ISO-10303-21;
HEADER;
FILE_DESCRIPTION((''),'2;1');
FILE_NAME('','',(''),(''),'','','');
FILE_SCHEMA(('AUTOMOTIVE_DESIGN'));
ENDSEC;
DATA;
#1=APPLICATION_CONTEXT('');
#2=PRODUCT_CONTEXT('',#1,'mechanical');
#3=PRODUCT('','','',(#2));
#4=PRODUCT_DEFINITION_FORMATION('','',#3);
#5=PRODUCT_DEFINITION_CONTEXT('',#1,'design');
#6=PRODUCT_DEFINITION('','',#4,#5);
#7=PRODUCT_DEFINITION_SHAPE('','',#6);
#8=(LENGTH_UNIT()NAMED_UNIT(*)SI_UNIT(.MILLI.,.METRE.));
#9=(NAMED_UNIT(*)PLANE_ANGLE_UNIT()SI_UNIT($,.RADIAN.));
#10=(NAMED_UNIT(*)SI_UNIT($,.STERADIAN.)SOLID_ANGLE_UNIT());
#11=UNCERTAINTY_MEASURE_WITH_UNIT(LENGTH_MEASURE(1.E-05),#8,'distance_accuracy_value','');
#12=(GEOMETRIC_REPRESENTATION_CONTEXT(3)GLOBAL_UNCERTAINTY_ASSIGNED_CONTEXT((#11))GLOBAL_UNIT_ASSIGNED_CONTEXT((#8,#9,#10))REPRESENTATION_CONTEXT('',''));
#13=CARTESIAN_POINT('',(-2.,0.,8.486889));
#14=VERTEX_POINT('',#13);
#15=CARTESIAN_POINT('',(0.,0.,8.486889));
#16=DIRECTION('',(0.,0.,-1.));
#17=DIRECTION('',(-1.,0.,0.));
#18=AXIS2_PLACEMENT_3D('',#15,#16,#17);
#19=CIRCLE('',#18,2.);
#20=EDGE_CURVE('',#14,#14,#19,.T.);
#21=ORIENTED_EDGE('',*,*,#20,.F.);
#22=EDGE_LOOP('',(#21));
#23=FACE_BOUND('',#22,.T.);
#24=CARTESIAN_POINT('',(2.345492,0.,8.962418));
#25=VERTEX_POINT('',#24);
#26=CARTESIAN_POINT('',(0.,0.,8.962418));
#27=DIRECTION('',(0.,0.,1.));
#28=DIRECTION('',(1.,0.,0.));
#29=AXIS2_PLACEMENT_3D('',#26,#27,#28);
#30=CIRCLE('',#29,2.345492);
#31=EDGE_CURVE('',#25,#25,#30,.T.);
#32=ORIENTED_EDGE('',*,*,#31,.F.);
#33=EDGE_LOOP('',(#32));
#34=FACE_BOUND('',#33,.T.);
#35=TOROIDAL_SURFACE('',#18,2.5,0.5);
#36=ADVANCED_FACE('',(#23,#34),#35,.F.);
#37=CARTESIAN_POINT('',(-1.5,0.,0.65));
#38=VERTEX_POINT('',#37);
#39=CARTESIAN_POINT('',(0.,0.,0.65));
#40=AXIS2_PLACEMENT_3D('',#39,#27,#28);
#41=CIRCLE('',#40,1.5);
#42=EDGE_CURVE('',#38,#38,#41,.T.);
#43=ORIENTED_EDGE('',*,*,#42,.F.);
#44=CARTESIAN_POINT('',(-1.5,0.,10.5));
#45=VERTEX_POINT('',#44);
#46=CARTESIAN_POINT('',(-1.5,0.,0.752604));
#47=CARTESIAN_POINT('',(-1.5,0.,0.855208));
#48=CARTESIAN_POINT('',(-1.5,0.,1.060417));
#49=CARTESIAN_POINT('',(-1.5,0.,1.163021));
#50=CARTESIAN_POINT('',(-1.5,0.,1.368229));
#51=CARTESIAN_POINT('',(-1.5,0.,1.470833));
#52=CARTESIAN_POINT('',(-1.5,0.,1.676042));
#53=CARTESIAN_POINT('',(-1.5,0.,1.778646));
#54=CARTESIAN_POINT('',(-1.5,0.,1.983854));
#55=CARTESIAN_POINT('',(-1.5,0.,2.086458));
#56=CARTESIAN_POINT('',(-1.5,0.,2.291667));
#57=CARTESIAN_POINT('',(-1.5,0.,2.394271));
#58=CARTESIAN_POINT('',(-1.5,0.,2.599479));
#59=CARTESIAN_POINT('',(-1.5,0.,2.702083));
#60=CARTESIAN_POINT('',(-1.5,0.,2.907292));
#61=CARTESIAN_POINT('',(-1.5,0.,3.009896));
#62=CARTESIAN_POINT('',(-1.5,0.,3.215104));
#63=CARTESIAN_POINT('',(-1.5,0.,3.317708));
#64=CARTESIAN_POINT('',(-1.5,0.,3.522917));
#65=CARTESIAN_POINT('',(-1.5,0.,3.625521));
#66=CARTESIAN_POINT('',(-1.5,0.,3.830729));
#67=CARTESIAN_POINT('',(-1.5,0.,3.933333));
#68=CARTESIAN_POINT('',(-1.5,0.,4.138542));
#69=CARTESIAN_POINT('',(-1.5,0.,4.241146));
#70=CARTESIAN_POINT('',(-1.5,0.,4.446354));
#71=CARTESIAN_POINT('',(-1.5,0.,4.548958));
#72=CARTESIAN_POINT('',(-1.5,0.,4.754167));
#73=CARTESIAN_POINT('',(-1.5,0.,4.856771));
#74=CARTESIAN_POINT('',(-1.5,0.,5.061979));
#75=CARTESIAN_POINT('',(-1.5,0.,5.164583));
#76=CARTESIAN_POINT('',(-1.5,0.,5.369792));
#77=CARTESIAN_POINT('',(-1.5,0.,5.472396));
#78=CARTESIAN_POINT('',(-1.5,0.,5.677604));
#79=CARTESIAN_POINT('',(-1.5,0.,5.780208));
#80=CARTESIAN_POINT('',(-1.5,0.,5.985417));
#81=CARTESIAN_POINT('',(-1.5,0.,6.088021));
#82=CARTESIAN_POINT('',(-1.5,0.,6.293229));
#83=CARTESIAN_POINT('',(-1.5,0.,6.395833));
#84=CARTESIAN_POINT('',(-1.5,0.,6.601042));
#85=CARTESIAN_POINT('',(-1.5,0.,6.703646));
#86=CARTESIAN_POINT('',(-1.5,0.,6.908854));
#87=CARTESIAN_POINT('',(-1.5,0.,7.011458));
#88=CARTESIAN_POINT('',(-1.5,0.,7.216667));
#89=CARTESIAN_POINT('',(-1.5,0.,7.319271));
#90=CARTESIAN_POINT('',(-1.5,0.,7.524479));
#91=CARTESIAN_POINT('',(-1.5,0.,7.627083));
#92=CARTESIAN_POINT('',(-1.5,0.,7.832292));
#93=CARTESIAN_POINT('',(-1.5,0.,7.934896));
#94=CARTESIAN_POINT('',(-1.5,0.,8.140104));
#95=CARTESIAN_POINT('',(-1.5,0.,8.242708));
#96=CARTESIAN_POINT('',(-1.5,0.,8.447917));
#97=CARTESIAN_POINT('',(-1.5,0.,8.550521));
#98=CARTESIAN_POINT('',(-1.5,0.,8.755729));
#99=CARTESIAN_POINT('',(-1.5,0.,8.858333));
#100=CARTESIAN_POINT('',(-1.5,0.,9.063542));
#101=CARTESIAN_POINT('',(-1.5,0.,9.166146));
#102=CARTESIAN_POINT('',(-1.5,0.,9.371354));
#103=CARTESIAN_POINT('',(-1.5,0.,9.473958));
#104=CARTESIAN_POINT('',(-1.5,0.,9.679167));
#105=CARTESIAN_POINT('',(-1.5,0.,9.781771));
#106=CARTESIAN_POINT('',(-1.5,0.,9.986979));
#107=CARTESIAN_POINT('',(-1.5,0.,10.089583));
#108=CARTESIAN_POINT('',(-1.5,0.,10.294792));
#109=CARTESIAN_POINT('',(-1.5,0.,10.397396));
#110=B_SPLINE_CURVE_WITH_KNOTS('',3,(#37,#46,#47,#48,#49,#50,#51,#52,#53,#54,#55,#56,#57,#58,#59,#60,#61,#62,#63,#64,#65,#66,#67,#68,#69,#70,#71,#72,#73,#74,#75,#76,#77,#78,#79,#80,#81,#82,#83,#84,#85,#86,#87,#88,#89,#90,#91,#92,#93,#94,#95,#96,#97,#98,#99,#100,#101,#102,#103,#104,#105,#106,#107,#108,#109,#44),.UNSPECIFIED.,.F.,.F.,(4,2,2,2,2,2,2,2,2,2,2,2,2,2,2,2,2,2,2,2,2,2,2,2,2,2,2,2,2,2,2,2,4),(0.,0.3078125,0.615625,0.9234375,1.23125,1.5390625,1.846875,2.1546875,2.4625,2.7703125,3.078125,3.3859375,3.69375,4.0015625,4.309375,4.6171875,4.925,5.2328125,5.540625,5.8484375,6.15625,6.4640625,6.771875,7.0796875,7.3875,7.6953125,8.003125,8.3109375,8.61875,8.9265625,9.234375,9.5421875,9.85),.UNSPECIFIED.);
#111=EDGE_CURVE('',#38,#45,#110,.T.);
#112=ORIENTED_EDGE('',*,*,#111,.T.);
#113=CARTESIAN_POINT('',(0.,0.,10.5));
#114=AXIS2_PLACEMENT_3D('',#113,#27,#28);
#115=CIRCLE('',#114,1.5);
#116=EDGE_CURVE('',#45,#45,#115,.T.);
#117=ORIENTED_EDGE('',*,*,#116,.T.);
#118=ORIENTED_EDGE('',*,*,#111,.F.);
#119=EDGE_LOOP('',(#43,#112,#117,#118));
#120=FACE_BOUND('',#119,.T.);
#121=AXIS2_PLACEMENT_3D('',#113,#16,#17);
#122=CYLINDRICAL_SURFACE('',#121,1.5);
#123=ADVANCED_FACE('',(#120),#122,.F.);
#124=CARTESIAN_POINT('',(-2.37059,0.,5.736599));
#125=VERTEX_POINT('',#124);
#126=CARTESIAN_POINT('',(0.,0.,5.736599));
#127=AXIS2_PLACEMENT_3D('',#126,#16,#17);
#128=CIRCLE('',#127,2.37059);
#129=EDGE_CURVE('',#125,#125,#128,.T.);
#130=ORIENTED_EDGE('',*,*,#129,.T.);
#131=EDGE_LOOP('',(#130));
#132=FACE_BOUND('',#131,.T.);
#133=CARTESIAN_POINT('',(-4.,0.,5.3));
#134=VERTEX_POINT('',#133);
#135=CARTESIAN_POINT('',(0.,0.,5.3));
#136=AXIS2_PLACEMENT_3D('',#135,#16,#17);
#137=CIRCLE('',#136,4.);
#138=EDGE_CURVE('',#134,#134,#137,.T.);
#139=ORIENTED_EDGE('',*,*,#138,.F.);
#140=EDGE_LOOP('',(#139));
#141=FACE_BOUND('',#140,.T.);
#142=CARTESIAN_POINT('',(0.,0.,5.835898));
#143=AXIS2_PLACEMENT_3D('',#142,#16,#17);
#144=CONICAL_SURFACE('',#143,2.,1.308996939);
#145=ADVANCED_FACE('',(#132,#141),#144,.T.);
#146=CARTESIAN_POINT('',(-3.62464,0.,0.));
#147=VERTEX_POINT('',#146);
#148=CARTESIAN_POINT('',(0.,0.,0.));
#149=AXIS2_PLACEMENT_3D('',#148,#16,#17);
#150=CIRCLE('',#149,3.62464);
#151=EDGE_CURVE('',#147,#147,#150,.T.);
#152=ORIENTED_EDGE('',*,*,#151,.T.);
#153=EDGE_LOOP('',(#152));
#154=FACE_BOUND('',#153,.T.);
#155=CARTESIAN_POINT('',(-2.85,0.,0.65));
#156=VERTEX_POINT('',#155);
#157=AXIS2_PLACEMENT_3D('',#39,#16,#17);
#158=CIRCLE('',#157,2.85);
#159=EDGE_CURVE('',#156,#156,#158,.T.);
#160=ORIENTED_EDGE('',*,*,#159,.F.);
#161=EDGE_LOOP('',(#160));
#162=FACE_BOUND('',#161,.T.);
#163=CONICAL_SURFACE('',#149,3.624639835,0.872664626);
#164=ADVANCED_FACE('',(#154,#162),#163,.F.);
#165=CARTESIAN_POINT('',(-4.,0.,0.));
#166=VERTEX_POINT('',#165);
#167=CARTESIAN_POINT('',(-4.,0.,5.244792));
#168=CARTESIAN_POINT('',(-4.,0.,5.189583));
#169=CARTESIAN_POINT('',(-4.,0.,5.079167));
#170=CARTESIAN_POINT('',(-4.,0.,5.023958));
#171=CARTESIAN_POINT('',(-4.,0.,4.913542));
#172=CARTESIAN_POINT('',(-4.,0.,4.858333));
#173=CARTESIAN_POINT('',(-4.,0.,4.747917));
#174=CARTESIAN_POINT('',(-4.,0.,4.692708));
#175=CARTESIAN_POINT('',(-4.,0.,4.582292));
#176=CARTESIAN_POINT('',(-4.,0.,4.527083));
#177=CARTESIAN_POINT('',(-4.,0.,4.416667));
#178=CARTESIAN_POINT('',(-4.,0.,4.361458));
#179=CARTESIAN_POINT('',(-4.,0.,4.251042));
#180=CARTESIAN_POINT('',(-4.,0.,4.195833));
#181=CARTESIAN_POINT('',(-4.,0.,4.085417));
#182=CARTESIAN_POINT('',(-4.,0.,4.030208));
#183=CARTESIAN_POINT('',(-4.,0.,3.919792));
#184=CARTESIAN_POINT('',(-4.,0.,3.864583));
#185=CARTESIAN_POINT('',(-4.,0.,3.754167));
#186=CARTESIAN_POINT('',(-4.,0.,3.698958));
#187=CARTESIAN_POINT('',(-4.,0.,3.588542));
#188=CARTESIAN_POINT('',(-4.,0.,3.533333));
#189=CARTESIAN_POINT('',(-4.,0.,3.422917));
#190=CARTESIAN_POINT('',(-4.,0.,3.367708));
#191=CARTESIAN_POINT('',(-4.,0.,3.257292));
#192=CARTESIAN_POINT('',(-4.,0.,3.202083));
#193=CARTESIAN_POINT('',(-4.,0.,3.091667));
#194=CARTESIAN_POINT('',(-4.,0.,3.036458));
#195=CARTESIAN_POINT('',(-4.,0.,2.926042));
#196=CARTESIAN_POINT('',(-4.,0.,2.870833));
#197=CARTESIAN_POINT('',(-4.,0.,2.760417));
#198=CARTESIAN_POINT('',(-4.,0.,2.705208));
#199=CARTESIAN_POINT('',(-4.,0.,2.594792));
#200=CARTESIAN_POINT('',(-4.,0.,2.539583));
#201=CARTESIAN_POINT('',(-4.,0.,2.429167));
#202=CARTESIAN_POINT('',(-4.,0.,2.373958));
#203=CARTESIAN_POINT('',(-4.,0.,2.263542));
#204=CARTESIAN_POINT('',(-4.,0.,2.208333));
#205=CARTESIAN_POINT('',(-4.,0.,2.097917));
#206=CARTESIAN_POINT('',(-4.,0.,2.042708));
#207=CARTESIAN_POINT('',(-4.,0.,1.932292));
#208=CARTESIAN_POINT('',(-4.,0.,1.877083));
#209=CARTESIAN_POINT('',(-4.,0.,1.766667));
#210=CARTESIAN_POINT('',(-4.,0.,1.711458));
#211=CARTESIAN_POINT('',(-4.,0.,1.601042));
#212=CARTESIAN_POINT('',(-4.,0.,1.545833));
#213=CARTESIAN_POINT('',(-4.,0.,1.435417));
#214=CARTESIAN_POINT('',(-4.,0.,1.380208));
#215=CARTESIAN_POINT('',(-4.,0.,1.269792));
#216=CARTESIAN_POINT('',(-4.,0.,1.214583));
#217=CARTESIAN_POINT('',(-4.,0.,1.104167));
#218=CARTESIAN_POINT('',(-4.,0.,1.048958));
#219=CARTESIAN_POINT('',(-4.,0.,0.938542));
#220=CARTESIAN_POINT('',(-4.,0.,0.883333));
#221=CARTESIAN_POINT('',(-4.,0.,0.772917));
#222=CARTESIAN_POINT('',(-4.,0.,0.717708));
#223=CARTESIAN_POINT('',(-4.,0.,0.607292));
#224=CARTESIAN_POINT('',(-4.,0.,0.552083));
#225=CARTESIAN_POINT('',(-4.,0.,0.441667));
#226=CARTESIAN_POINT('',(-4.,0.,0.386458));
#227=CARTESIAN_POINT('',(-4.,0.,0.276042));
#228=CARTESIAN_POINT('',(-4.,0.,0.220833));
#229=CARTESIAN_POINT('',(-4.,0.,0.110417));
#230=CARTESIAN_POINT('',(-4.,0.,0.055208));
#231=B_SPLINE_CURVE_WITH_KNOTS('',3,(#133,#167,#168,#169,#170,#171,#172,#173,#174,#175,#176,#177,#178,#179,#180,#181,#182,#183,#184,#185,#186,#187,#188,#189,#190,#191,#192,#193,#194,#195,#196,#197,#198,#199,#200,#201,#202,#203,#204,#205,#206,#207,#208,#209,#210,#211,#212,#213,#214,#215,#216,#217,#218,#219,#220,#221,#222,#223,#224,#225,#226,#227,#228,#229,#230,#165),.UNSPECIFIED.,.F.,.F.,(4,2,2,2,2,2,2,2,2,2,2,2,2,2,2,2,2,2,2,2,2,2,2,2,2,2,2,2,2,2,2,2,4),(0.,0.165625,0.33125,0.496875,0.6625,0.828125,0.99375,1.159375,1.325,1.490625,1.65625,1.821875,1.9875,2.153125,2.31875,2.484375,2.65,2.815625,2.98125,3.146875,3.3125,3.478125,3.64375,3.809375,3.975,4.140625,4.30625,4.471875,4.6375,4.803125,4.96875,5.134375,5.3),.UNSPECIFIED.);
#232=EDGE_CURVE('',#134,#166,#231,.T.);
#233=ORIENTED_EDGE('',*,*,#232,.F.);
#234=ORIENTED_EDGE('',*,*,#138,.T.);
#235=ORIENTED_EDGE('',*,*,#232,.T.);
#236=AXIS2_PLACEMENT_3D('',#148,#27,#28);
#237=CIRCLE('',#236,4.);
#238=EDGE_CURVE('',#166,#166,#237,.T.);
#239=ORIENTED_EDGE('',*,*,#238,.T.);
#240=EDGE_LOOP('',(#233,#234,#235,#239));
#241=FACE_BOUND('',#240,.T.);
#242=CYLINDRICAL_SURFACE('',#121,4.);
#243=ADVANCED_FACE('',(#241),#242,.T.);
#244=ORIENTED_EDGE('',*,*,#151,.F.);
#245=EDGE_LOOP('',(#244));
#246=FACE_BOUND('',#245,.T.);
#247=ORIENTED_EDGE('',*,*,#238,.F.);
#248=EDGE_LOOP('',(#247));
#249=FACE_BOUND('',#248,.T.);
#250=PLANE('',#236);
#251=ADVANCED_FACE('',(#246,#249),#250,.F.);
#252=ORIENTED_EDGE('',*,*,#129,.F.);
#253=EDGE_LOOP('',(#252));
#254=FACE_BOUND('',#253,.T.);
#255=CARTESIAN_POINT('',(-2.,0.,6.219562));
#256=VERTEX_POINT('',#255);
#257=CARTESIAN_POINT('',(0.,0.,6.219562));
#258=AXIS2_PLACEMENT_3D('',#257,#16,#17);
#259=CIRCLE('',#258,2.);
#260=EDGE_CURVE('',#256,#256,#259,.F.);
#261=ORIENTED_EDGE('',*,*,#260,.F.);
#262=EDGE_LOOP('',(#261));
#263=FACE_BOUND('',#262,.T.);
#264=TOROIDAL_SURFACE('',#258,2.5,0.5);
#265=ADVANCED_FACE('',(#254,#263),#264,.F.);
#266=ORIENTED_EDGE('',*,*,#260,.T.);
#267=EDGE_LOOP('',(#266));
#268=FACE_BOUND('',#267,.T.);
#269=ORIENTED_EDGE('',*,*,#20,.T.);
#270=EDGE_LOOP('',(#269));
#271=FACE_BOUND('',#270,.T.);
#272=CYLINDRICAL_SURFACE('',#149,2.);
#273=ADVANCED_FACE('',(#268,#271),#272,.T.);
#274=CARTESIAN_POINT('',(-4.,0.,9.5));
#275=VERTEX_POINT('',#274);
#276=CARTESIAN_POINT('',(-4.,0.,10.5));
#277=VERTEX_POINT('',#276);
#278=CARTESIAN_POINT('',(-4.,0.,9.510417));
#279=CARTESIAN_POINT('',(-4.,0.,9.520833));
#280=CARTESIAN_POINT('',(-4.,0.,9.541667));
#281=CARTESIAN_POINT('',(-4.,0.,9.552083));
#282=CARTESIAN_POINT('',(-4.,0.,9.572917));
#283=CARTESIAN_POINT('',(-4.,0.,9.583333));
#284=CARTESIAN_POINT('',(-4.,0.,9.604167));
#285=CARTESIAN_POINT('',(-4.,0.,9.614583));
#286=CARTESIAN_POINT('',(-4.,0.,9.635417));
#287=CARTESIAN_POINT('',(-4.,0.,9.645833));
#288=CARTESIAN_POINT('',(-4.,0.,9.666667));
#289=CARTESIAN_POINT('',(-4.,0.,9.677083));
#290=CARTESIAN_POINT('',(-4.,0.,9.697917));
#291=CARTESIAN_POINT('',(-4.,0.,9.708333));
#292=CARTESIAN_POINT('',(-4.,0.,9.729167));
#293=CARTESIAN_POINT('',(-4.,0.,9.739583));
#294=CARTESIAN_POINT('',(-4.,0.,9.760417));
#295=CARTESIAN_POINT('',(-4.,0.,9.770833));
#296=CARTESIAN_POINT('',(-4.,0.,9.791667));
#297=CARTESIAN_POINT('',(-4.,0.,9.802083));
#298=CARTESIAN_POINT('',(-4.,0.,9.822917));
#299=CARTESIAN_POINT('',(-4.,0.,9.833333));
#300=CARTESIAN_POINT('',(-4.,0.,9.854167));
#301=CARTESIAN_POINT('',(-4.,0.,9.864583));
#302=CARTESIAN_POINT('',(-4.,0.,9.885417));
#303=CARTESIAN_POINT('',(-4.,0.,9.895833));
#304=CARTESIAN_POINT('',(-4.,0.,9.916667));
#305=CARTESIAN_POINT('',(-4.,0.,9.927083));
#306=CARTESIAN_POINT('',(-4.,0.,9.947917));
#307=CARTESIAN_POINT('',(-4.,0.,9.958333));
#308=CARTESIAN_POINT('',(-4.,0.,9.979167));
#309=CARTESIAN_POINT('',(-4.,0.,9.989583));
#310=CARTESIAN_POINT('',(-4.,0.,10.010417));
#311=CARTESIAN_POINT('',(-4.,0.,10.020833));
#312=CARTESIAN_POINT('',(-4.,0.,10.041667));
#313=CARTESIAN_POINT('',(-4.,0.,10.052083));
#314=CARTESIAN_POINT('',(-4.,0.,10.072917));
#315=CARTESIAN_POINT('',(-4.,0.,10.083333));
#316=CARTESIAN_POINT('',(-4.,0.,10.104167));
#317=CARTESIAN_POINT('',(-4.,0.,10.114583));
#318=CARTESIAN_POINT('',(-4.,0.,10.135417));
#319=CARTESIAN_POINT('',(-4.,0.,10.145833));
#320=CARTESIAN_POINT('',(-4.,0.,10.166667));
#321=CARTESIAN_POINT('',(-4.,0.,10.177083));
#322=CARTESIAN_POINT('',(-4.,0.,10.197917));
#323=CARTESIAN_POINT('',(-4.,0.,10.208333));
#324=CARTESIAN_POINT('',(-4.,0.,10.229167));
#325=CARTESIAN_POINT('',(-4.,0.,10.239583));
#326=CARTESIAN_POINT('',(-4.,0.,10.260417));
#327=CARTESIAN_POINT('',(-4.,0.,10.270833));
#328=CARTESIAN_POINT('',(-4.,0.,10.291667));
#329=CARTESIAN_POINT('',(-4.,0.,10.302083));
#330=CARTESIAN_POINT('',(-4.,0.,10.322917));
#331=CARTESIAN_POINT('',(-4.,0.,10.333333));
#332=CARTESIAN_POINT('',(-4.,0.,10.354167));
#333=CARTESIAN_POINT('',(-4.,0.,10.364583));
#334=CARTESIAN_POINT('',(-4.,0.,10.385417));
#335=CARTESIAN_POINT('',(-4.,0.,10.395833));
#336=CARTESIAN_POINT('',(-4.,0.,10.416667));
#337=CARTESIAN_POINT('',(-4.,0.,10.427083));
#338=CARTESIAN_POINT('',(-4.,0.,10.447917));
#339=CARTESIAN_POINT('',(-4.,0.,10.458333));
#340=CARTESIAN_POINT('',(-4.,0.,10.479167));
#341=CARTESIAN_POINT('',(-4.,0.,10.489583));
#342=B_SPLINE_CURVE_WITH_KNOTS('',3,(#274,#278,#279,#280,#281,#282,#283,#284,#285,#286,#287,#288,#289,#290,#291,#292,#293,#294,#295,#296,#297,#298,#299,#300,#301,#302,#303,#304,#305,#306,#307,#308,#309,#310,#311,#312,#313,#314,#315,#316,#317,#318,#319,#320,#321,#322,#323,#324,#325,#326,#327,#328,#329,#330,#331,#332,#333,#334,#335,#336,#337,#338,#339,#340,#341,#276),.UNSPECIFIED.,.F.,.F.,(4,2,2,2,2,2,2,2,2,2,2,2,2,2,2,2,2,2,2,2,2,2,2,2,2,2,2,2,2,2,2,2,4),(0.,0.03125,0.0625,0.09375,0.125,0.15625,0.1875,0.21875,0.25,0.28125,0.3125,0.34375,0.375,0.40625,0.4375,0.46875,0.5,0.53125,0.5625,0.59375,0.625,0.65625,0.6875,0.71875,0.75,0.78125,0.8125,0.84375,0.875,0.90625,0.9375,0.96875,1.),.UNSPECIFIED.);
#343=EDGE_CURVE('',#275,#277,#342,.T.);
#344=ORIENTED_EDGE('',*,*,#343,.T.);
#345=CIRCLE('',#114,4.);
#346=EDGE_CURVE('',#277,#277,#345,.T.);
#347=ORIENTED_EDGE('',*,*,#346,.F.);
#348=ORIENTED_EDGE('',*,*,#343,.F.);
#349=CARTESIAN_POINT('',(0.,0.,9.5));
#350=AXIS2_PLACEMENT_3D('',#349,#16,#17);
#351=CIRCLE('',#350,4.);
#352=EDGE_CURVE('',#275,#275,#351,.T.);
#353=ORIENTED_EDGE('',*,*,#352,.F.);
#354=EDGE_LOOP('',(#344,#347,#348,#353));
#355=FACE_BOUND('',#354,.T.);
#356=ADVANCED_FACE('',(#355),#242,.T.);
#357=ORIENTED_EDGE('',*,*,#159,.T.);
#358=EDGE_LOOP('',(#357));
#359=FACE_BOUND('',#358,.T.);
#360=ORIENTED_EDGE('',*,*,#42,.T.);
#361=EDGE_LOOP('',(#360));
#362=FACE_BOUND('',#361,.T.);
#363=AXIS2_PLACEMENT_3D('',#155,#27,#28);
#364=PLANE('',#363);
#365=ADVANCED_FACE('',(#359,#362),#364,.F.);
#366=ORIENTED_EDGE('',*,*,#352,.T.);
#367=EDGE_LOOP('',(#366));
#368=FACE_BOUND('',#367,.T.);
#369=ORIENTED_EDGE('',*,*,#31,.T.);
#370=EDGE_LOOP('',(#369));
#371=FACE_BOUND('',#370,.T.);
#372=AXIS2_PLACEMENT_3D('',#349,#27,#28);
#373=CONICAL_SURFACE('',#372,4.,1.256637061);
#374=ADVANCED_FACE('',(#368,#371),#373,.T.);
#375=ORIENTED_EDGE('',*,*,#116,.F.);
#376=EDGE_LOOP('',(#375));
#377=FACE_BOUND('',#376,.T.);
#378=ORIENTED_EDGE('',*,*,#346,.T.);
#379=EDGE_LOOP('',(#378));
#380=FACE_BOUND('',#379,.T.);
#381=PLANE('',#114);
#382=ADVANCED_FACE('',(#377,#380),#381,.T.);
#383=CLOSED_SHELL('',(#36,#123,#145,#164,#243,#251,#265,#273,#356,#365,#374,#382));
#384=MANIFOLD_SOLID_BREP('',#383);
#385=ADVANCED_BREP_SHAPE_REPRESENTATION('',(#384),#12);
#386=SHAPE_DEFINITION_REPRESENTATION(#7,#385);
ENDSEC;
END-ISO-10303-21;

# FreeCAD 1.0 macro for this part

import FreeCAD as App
import Part
import Sketcher

V = App.Vector
Q = App.Units.Quantity


def edges_at(feature, points):
    """Names of the edges that pass closest to the given points."""
    edges = feature.Shape.Edges
    near = lambda p: min(range(len(edges)), key=lambda i: edges[i].distToShape(Part.Vertex(*p))[0])
    return sorted({f"Edge{near(p) + 1}" for p in points})


def add_polygon(sketch, points):
    """Adds a closed chain of lines whose ends are joined by coincident constraints."""
    first, n = sketch.GeometryCount, len(points)
    for a, b in zip(points, points[1:] + points[:1]):
        sketch.addGeometry(Part.LineSegment(App.Vector(*a, 0), App.Vector(*b, 0)), False)
    for i in range(n):
        sketch.addConstraint(Sketcher.Constraint("Coincident", first + i, 2, first + (i + 1) % n, 1))

doc = App.newDocument("Part")
body = doc.addObject("PartDesign::Body", "Body")

# Sketch on XY plane
sketch1 = body.newObject("Sketcher::SketchObject", "Sketch")
sketch1.AttachmentSupport = (doc.getObject("XY_Plane"), [""])
sketch1.MapMode = "FlatFace"
sketch1.addGeometry([
    Part.Circle(V(0, 0, 0), V(0, 0, 1), 4),
    Part.Circle(V(0, 0, 0), V(0, 0, 1), 1.5),
], False)
sketch1.addConstraint([
    Sketcher.Constraint("Coincident", 0, 3, -1, 1),
    Sketcher.Constraint("Coincident", 1, 3, -1, 1),
    Sketcher.Constraint("Diameter", 0, Q("8 mm")),
    Sketcher.Constraint("Diameter", 1, Q("3 mm")),
])
pad1 = body.newObject("PartDesign::Pad", "Pad")
pad1.Profile = sketch1
pad1.Length = 10.5

# Sketch on XZ plane
sketch2 = body.newObject("Sketcher::SketchObject", "Sketch001")
sketch2.AttachmentSupport = (doc.getObject("XZ_Plane"), [""])
sketch2.MapMode = "FlatFace"
add_polygon(sketch2, [(-3.6, 0), (-2.9, 0.7), (0, 0.7), (0, 0)])  # lines 0-3
add_polygon(sketch2, [(-4, 5.3), (-4, 9.5), (-2, 8.9), (-2, 5.8)])  # lines 4-7
sketch2.addConstraint([
    Sketcher.Constraint("Horizontal", 1),
    Sketcher.Constraint("Vertical", 2),
    Sketcher.Constraint("Horizontal", 3),
    Sketcher.Constraint("Vertical", 4),
    Sketcher.Constraint("Vertical", 6),
    Sketcher.Constraint("Coincident", 2, 2, -1, 1),
    Sketcher.Constraint("Angle", 0, Q("40 deg")),
    Sketcher.Constraint("Angle", 5, Q("-18 deg")),
    Sketcher.Constraint("Angle", 7, Q("-165 deg")),
    Sketcher.Constraint("DistanceY", 4, 1, 4, 2, Q("4.2 mm")),
    Sketcher.Constraint("DistanceX", 4, 2, -1, 1, Q("4 mm")),
    Sketcher.Constraint("DistanceX", 5, 2, -1, 1, Q("2 mm")),
    Sketcher.Constraint("DistanceX", 1, 1, 1, 2, Q("2.85 mm")),
    Sketcher.Constraint("DistanceY", 2, 2, 2, 1, Q("0.65 mm")),
    Sketcher.Constraint("DistanceY", -1, 1, 4, 2, Q("9.5 mm")),
])
groove = body.newObject("PartDesign::Groove", "Groove")
groove.Profile = sketch2
groove.ReferenceAxis = (sketch2, ["V_Axis"])
groove.Angle = 360
doc.recompute()

fillet = body.newObject("PartDesign::Fillet", "Fillet")
fillet.Base = (groove, edges_at(groove, [(2, 0, 5.836), (2, 0, 8.85)]))
fillet.Radius = 0.5

doc.recompute()
